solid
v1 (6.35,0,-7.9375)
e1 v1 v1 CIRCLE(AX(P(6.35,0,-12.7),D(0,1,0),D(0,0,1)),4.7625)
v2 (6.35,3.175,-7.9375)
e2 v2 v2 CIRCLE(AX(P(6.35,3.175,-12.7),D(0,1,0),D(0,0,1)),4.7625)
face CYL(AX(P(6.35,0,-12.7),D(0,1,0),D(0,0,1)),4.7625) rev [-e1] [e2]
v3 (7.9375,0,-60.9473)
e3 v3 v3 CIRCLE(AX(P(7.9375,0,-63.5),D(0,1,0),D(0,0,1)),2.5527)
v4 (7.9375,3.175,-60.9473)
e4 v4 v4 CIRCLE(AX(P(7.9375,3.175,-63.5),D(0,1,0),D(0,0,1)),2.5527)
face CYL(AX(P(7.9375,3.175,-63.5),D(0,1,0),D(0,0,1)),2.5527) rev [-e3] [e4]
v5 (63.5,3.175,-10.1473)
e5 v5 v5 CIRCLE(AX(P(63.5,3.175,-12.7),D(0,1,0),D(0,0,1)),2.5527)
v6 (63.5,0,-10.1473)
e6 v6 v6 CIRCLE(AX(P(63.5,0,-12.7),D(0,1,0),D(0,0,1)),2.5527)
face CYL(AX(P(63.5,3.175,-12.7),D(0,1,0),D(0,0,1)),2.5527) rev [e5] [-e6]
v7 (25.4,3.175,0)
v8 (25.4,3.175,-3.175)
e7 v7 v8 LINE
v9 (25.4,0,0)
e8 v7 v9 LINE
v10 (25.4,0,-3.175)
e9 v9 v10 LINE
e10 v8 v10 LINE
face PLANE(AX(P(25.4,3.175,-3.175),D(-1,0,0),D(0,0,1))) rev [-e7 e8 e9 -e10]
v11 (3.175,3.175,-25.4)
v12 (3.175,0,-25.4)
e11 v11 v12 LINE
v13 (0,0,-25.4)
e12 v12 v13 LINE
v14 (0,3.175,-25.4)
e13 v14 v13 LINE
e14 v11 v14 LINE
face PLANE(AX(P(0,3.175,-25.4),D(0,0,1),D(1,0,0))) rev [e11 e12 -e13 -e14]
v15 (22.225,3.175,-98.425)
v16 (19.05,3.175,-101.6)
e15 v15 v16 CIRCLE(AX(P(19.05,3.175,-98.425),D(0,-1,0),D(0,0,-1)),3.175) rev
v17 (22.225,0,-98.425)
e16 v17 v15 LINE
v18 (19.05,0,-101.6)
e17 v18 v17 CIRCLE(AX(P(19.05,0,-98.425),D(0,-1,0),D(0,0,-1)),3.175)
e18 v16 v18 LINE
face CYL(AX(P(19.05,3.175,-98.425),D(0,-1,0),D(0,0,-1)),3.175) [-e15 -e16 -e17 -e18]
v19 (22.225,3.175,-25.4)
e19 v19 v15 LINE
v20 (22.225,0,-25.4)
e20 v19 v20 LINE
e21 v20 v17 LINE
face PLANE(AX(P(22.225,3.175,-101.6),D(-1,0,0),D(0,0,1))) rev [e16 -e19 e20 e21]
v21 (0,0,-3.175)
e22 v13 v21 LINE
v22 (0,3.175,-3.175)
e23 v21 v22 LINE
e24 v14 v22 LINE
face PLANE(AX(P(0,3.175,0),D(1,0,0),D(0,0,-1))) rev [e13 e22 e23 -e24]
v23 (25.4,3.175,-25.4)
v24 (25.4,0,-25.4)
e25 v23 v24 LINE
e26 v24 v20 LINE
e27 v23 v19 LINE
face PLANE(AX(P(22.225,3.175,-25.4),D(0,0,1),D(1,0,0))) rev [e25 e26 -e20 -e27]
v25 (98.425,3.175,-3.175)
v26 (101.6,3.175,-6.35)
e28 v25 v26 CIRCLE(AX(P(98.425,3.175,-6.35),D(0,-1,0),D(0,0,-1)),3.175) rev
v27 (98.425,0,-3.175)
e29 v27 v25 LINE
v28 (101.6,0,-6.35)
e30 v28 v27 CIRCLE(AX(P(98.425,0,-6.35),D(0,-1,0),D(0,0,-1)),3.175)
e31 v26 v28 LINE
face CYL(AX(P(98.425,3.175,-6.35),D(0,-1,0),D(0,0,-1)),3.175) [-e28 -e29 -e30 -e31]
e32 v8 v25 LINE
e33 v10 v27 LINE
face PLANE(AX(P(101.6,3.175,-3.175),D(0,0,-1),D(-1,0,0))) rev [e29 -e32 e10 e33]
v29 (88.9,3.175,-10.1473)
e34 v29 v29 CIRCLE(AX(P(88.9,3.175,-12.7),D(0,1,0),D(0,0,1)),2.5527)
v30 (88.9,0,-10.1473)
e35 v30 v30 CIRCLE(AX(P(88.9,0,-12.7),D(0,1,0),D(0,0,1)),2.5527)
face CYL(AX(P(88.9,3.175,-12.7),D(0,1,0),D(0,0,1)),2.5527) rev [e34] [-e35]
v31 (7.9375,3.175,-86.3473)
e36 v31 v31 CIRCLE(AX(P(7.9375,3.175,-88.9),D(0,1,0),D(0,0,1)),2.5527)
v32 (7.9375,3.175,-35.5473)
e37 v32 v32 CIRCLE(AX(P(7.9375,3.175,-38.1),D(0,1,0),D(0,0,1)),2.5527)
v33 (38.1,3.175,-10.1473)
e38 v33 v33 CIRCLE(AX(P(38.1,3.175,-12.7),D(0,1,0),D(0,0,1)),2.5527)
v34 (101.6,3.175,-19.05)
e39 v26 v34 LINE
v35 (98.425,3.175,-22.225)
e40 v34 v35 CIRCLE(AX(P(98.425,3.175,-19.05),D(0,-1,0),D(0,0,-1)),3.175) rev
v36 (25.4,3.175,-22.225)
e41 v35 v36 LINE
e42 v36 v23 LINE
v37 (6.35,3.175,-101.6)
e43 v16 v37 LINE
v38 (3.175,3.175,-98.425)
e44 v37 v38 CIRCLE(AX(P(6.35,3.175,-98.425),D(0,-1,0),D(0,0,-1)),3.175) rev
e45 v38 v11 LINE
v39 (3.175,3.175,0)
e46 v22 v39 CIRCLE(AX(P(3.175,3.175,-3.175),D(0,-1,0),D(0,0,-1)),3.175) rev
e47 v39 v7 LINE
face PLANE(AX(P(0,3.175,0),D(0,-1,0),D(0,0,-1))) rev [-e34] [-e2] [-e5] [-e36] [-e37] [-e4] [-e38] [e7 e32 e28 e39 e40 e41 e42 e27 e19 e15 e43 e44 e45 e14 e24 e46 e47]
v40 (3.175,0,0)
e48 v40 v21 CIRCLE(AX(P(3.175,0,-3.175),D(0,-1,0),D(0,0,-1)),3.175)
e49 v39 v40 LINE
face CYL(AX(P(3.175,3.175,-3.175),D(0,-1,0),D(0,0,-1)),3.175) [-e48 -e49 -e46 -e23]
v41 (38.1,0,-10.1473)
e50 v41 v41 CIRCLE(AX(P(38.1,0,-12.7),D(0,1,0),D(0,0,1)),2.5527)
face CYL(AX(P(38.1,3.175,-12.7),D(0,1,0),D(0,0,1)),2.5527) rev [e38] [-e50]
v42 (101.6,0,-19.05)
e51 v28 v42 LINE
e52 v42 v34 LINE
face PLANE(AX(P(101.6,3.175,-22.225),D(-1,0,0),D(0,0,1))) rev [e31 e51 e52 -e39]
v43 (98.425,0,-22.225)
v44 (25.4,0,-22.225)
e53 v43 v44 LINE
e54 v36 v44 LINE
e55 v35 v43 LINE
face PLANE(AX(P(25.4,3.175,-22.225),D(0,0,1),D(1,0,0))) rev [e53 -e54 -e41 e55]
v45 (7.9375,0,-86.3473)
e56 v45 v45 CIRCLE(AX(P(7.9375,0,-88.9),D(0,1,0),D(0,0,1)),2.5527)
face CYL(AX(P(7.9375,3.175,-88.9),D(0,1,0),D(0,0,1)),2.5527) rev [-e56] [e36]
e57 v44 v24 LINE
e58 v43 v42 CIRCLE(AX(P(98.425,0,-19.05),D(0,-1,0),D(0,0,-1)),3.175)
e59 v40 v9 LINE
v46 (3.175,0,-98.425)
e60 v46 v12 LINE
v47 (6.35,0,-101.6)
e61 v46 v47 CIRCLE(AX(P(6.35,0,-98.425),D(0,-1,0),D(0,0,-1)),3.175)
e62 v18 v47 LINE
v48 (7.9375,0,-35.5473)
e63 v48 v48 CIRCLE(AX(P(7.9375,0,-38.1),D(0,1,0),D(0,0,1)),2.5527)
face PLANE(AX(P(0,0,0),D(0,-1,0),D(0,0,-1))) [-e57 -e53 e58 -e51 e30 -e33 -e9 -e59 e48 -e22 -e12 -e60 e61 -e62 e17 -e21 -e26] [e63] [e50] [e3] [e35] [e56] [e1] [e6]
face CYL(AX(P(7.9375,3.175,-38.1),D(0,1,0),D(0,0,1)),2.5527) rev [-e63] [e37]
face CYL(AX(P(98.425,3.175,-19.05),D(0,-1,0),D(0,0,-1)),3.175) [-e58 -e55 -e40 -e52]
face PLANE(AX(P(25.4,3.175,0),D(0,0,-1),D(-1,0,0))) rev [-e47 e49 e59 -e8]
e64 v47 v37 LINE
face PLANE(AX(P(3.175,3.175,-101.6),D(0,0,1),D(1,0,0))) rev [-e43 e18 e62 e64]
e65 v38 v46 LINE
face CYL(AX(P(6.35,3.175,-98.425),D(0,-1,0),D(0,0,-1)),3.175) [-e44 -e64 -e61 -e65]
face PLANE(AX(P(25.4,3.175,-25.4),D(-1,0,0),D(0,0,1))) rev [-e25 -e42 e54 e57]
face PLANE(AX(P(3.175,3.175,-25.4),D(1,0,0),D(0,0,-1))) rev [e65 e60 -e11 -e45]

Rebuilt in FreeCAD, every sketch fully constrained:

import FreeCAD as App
import Part
import Sketcher
from FreeCAD import Vector
Q = App.Units.Quantity


def edges_at(feature, points):
    """Names of the edges that pass closest to the given points."""
    edges = feature.Shape.Edges
    near = lambda p: min(range(len(edges)), key=lambda i: edges[i].distToShape(Part.Vertex(*p))[0])
    return sorted({f"Edge{near(p) + 1}" for p in points})

doc = App.newDocument("Part")
body = doc.addObject("PartDesign::Body", "Body")

# Sketch on XZ plane
sketch1 = body.newObject("Sketcher::SketchObject", "Sketch")
sketch1.AttachmentSupport = (doc.getObject("XZ_Plane"), [""])
sketch1.MapMode = "FlatFace"
sketch1.addGeometry(Part.LineSegment(Vector(0, -25.4, 0), Vector(0, 0, 0)), False)
sketch1.addGeometry(Part.LineSegment(Vector(0, 0, 0), Vector(25.4, 0, 0)), False)
sketch1.addGeometry(Part.LineSegment(Vector(25.4, 0, 0), Vector(25.4, -3.2, 0)), False)
sketch1.addGeometry(Part.LineSegment(Vector(25.4, -3.2, 0), Vector(101.6, -3.2, 0)), False)
sketch1.addGeometry(Part.LineSegment(Vector(101.6, -3.2, 0), Vector(101.6, -22.2, 0)), False)
sketch1.addGeometry(Part.LineSegment(Vector(101.6, -22.2, 0), Vector(25.4, -22.2, 0)), False)
sketch1.addGeometry(Part.LineSegment(Vector(25.4, -22.2, 0), Vector(25.4, -25.4, 0)), False)
sketch1.addGeometry(Part.LineSegment(Vector(25.4, -25.4, 0), Vector(22.2, -25.4, 0)), False)
sketch1.addGeometry(Part.LineSegment(Vector(22.2, -25.4, 0), Vector(22.2, -101.6, 0)), False)
sketch1.addGeometry(Part.LineSegment(Vector(22.2, -101.6, 0), Vector(3.2, -101.6, 0)), False)
sketch1.addGeometry(Part.LineSegment(Vector(3.2, -101.6, 0), Vector(3.2, -25.4, 0)), False)
sketch1.addGeometry(Part.LineSegment(Vector(3.2, -25.4, 0), Vector(0, -25.4, 0)), False)
sketch1.addConstraint(Sketcher.Constraint("Coincident", 0, 2, 1, 1))
sketch1.addConstraint(Sketcher.Constraint("Coincident", 1, 2, 2, 1))
sketch1.addConstraint(Sketcher.Constraint("Coincident", 2, 2, 3, 1))
sketch1.addConstraint(Sketcher.Constraint("Coincident", 3, 2, 4, 1))
sketch1.addConstraint(Sketcher.Constraint("Coincident", 4, 2, 5, 1))
sketch1.addConstraint(Sketcher.Constraint("Coincident", 5, 2, 6, 1))
sketch1.addConstraint(Sketcher.Constraint("Coincident", 6, 2, 7, 1))
sketch1.addConstraint(Sketcher.Constraint("Coincident", 7, 2, 8, 1))
sketch1.addConstraint(Sketcher.Constraint("Coincident", 8, 2, 9, 1))
sketch1.addConstraint(Sketcher.Constraint("Coincident", 9, 2, 10, 1))
sketch1.addConstraint(Sketcher.Constraint("Coincident", 10, 2, 11, 1))
sketch1.addConstraint(Sketcher.Constraint("Coincident", 11, 2, 0, 1))
sketch1.addConstraint(Sketcher.Constraint("Vertical", 0))
sketch1.addConstraint(Sketcher.Constraint("Horizontal", 1))
sketch1.addConstraint(Sketcher.Constraint("Vertical", 2))
sketch1.addConstraint(Sketcher.Constraint("Horizontal", 3))
sketch1.addConstraint(Sketcher.Constraint("Vertical", 4))
sketch1.addConstraint(Sketcher.Constraint("Horizontal", 5))
sketch1.addConstraint(Sketcher.Constraint("Vertical", 6))
sketch1.addConstraint(Sketcher.Constraint("Horizontal", 7))
sketch1.addConstraint(Sketcher.Constraint("Vertical", 8))
sketch1.addConstraint(Sketcher.Constraint("Horizontal", 9))
sketch1.addConstraint(Sketcher.Constraint("Vertical", 10))
sketch1.addConstraint(Sketcher.Constraint("Horizontal", 11))
sketch1.addConstraint(Sketcher.Constraint("Coincident", 0, 2, -1, 1))
sketch1.addConstraint(Sketcher.Constraint("Horizontal", 7, 2, 10, 2))
sketch1.addConstraint(Sketcher.Constraint("Vertical", 2, 2, 5, 2))
sketch1.addConstraint(Sketcher.Constraint("Equal", 7, 11))
sketch1.addConstraint(Sketcher.Constraint("Equal", 1, 0))
sketch1.addConstraint(Sketcher.Constraint("Equal", 11, 2))
sketch1.addConstraint(Sketcher.Constraint("Equal", 9, 4))
sketch1.addConstraint(Sketcher.Constraint("Equal", 5, 8))
sketch1.addConstraint(Sketcher.Constraint("DistanceX", 1, 1, 1, 2, Q("1 in")))
sketch1.addConstraint(Sketcher.Constraint("DistanceX", 3, 1, 3, 2, Q("3 in")))
sketch1.addConstraint(Sketcher.Constraint("DistanceX", 9, 2, 9, 1, Q("0.75 in")))
pad1 = body.newObject("PartDesign::Pad", "Pad")
pad1.Profile = sketch1
pad1.Length = Q("0.125 in")
pad1.Reversed = True

# Sketch on XZ plane
sketch2 = body.newObject("Sketcher::SketchObject", "Sketch001")
sketch2.AttachmentSupport = (doc.getObject("XZ_Plane"), [""])
sketch2.MapMode = "FlatFace"
sketch2.AttachmentOffset = App.Placement(Vector(0, 0, -0.125 * 25.4), App.Rotation())
sketch2.addGeometry(Part.Circle(Vector(88.9, -12.7, 0), Vector(0, 0, 1), 2.6), False)
sketch2.addGeometry(Part.Circle(Vector(7.9, -88.9, 0), Vector(0, 0, 1), 2.6), False)
sketch2.addGeometry(Part.Circle(Vector(7.9, -63.5, 0), Vector(0, 0, 1), 2.6), False)
sketch2.addGeometry(Part.Circle(Vector(7.9, -38.1, 0), Vector(0, 0, 1), 2.6), False)
sketch2.addGeometry(Part.Circle(Vector(38.1, -12.7, 0), Vector(0, 0, 1), 2.6), False)
sketch2.addGeometry(Part.Circle(Vector(63.5, -12.7, 0), Vector(0, 0, 1), 2.6), False)
sketch2.addConstraint(Sketcher.Constraint("Equal", 0, 1))
sketch2.addConstraint(Sketcher.Constraint("Equal", 1, 2))
sketch2.addConstraint(Sketcher.Constraint("Equal", 2, 3))
sketch2.addConstraint(Sketcher.Constraint("Equal", 3, 4))
sketch2.addConstraint(Sketcher.Constraint("Equal", 4, 5))
sketch2.addConstraint(Sketcher.Constraint("Horizontal", 0, 3, 4, 3))
sketch2.addConstraint(Sketcher.Constraint("Horizontal", 4, 3, 5, 3))
sketch2.addConstraint(Sketcher.Constraint("Vertical", 1, 3, 2, 3))
sketch2.addConstraint(Sketcher.Constraint("Vertical", 2, 3, 3, 3))
sketch2.addConstraint(Sketcher.Constraint("Diameter", 0, Q("0.201 in")))
sketch2.addConstraint(Sketcher.Constraint("DistanceY", 1, 3, 0, 3, Q("3 in")))
sketch2.addConstraint(Sketcher.Constraint("DistanceY", 1, 3, 2, 3, Q("1 in")))
sketch2.addConstraint(Sketcher.Constraint("DistanceY", 2, 3, 3, 3, Q("1 in")))
sketch2.addConstraint(Sketcher.Constraint("DistanceX", 4, 3, 0, 3, Q("2 in")))
sketch2.addConstraint(Sketcher.Constraint("DistanceX", 4, 3, 5, 3, Q("1 in")))
sketch2.addConstraint(Sketcher.Constraint("DistanceX", -1, 1, 0, 3, Q("3.5 in")))
sketch2.addConstraint(Sketcher.Constraint("DistanceY", 0, 3, -1, 1, Q("0.5 in")))
sketch2.addConstraint(Sketcher.Constraint("DistanceX", -1, 1, 1, 3, Q("0.3125 in")))
doc.recompute()
hole = body.newObject("PartDesign::Hole", "Hole")
hole.Profile = sketch2
hole.ThreadType = "None"
hole.Diameter = Q("0.201 in")
hole.DepthType = "ThroughAll"
hole.Reversed = True

# Sketch on XZ plane
sketch3 = body.newObject("Sketcher::SketchObject", "Sketch002")
sketch3.AttachmentSupport = (doc.getObject("XZ_Plane"), [""])
sketch3.MapMode = "FlatFace"
sketch3.AttachmentOffset = App.Placement(Vector(0, 0, -0.125 * 25.4), App.Rotation())
sketch3.addGeometry(Part.Circle(Vector(6.3, -12.7, 0), Vector(0, 0, 1), 4.8), False)
sketch3.addConstraint(Sketcher.Constraint("Diameter", 0, Q("0.375 in")))
sketch3.addConstraint(Sketcher.Constraint("DistanceY", 0, 3, -1, 1, Q("0.5 in")))
sketch3.addConstraint(Sketcher.Constraint("DistanceX", -1, 1, 0, 3, Q("0.25 in")))
pocket1 = body.newObject("PartDesign::Pocket", "Pocket")
pocket1.Profile = sketch3
pocket1.Type = "ThroughAll"
pocket1.Reversed = True
doc.recompute()

fillet = body.newObject("PartDesign::Fillet", "Fillet")
fillet.Base = (pocket1, edges_at(pocket1, [
    (0, 1.587, 0),
    (3.175, 1.587, -101.6),
    (22.225, 1.587, -101.6),
    (101.6, 1.587, -22.225),
    (101.6, 1.587, -3.175),
]))
fillet.Radius = Q("0.125 in")

doc.recompute()
